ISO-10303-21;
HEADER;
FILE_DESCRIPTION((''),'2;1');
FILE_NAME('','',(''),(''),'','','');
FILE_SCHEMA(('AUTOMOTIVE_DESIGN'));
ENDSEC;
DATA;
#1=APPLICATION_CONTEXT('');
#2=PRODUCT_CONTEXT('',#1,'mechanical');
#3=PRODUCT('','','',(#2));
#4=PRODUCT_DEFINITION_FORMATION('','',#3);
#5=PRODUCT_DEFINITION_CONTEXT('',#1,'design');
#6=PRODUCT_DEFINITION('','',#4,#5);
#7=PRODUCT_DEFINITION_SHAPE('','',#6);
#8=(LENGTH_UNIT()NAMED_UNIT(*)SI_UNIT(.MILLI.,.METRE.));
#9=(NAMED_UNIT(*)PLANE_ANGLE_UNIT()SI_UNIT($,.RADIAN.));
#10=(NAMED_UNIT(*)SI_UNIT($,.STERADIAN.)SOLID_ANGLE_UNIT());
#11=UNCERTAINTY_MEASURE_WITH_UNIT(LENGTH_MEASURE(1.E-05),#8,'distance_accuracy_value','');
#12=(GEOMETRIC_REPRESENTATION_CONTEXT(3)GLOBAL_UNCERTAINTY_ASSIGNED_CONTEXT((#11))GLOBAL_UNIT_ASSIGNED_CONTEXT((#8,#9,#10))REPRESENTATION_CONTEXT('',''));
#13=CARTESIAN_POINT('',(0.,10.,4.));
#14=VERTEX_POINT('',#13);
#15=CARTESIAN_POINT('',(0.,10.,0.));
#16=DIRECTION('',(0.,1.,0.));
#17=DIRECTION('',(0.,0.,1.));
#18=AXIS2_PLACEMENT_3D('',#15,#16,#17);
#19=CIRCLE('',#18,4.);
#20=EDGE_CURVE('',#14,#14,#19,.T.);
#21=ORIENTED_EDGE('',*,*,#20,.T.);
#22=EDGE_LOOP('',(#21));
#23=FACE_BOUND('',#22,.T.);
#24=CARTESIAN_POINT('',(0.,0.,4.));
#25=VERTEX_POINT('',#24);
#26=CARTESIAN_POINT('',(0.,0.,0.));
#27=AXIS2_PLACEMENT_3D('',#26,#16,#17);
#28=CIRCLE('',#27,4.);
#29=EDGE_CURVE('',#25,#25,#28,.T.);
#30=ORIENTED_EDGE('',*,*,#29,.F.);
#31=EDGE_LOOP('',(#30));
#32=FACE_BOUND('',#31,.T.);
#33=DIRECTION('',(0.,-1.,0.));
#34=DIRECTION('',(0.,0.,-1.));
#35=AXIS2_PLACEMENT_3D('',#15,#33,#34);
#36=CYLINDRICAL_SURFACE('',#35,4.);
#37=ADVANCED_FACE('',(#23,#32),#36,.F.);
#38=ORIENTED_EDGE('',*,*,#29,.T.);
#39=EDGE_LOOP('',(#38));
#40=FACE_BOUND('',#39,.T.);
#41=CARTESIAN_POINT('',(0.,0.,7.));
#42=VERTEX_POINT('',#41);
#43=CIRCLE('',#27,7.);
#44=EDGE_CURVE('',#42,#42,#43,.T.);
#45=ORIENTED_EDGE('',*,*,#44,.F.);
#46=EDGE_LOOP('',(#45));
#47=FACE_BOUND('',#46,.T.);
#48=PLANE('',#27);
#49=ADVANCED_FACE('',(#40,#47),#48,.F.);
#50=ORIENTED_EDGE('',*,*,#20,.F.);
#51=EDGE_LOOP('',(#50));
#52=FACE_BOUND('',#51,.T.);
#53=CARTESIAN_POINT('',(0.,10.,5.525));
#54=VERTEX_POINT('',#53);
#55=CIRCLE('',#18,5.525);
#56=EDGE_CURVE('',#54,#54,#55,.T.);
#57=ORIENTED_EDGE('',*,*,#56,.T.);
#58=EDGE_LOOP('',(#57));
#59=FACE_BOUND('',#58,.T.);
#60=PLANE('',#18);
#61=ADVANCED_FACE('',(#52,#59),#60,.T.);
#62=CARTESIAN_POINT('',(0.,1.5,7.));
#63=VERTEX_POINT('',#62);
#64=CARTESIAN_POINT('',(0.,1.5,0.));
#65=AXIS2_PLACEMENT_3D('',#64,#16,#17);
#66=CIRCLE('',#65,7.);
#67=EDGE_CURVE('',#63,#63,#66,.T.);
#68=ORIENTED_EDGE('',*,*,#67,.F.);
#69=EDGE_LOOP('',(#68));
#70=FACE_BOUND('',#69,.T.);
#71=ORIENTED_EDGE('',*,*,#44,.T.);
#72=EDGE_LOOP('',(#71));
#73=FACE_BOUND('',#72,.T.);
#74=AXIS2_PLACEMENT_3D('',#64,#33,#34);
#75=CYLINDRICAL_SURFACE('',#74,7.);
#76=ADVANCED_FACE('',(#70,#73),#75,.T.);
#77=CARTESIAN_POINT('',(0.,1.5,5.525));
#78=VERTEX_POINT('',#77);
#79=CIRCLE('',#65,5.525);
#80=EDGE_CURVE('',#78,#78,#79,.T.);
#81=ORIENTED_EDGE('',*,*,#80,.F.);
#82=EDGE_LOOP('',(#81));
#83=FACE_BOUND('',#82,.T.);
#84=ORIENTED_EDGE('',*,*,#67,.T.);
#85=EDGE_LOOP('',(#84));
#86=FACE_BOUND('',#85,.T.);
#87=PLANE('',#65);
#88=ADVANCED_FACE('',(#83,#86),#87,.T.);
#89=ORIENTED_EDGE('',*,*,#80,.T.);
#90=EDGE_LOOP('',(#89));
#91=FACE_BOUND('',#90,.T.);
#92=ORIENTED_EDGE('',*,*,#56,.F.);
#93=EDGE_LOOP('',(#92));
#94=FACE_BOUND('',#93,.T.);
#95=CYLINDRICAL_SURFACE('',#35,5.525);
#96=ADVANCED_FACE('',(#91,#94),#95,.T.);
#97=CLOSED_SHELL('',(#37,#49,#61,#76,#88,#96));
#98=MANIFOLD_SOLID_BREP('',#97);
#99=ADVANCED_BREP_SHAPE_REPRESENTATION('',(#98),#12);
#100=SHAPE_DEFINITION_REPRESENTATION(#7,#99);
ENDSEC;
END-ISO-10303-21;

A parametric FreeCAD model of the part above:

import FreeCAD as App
import Part
import Sketcher
from FreeCAD import Vector
Q = App.Units.Quantity

doc = App.newDocument("Part")
body = doc.addObject("PartDesign::Body", "Body")

# Sketch on XZ plane
sketch1 = body.newObject("Sketcher::SketchObject", "Sketch")
sketch1.AttachmentSupport = (doc.getObject("XZ_Plane"), [""])
sketch1.MapMode = "FlatFace"
sketch1.addGeometry([
    Part.Circle(Vector(0, 0, 0), Vector(0, 0, 1), 5.5),
    Part.Circle(Vector(0, 0, 0), Vector(0, 0, 1), 4),
], False)
sketch1.addConstraint([
    Sketcher.Constraint("Coincident", 0, 3, -1, 1),
    Sketcher.Constraint("Coincident", 1, 3, -1, 1),
    Sketcher.Constraint("Diameter", 1, Q("8 mm")),
    Sketcher.Constraint("Diameter", 0, Q("11.05 mm")),
])
pad1 = body.newObject("PartDesign::Pad", "Pad")
pad1.Profile = sketch1
pad1.Length = 10
pad1.Reversed = True

# Sketch on XZ plane
sketch2 = body.newObject("Sketcher::SketchObject", "Sketch001")
sketch2.AttachmentSupport = (doc.getObject("XZ_Plane"), [""])
sketch2.MapMode = "FlatFace"
sketch2.addGeometry([
    Part.Circle(Vector(0, 0, 0), Vector(0, 0, 1), 7),
    Part.Circle(Vector(0, 0, 0), Vector(0, 0, 1), 6),
], False)
sketch2.addConstraint([
    Sketcher.Constraint("Coincident", 0, 3, -1, 1),
    Sketcher.Constraint("Coincident", 1, 3, -1, 1),
    Sketcher.Constraint("Diameter", 0, Q("14 mm")),
    Sketcher.Constraint("Diameter", 1, Q("11.05 mm")),
])
pad2 = body.newObject("PartDesign::Pad", "Pad001")
pad2.Profile = sketch2
pad2.Length = 1.5
pad2.Reversed = True

doc.recompute()
